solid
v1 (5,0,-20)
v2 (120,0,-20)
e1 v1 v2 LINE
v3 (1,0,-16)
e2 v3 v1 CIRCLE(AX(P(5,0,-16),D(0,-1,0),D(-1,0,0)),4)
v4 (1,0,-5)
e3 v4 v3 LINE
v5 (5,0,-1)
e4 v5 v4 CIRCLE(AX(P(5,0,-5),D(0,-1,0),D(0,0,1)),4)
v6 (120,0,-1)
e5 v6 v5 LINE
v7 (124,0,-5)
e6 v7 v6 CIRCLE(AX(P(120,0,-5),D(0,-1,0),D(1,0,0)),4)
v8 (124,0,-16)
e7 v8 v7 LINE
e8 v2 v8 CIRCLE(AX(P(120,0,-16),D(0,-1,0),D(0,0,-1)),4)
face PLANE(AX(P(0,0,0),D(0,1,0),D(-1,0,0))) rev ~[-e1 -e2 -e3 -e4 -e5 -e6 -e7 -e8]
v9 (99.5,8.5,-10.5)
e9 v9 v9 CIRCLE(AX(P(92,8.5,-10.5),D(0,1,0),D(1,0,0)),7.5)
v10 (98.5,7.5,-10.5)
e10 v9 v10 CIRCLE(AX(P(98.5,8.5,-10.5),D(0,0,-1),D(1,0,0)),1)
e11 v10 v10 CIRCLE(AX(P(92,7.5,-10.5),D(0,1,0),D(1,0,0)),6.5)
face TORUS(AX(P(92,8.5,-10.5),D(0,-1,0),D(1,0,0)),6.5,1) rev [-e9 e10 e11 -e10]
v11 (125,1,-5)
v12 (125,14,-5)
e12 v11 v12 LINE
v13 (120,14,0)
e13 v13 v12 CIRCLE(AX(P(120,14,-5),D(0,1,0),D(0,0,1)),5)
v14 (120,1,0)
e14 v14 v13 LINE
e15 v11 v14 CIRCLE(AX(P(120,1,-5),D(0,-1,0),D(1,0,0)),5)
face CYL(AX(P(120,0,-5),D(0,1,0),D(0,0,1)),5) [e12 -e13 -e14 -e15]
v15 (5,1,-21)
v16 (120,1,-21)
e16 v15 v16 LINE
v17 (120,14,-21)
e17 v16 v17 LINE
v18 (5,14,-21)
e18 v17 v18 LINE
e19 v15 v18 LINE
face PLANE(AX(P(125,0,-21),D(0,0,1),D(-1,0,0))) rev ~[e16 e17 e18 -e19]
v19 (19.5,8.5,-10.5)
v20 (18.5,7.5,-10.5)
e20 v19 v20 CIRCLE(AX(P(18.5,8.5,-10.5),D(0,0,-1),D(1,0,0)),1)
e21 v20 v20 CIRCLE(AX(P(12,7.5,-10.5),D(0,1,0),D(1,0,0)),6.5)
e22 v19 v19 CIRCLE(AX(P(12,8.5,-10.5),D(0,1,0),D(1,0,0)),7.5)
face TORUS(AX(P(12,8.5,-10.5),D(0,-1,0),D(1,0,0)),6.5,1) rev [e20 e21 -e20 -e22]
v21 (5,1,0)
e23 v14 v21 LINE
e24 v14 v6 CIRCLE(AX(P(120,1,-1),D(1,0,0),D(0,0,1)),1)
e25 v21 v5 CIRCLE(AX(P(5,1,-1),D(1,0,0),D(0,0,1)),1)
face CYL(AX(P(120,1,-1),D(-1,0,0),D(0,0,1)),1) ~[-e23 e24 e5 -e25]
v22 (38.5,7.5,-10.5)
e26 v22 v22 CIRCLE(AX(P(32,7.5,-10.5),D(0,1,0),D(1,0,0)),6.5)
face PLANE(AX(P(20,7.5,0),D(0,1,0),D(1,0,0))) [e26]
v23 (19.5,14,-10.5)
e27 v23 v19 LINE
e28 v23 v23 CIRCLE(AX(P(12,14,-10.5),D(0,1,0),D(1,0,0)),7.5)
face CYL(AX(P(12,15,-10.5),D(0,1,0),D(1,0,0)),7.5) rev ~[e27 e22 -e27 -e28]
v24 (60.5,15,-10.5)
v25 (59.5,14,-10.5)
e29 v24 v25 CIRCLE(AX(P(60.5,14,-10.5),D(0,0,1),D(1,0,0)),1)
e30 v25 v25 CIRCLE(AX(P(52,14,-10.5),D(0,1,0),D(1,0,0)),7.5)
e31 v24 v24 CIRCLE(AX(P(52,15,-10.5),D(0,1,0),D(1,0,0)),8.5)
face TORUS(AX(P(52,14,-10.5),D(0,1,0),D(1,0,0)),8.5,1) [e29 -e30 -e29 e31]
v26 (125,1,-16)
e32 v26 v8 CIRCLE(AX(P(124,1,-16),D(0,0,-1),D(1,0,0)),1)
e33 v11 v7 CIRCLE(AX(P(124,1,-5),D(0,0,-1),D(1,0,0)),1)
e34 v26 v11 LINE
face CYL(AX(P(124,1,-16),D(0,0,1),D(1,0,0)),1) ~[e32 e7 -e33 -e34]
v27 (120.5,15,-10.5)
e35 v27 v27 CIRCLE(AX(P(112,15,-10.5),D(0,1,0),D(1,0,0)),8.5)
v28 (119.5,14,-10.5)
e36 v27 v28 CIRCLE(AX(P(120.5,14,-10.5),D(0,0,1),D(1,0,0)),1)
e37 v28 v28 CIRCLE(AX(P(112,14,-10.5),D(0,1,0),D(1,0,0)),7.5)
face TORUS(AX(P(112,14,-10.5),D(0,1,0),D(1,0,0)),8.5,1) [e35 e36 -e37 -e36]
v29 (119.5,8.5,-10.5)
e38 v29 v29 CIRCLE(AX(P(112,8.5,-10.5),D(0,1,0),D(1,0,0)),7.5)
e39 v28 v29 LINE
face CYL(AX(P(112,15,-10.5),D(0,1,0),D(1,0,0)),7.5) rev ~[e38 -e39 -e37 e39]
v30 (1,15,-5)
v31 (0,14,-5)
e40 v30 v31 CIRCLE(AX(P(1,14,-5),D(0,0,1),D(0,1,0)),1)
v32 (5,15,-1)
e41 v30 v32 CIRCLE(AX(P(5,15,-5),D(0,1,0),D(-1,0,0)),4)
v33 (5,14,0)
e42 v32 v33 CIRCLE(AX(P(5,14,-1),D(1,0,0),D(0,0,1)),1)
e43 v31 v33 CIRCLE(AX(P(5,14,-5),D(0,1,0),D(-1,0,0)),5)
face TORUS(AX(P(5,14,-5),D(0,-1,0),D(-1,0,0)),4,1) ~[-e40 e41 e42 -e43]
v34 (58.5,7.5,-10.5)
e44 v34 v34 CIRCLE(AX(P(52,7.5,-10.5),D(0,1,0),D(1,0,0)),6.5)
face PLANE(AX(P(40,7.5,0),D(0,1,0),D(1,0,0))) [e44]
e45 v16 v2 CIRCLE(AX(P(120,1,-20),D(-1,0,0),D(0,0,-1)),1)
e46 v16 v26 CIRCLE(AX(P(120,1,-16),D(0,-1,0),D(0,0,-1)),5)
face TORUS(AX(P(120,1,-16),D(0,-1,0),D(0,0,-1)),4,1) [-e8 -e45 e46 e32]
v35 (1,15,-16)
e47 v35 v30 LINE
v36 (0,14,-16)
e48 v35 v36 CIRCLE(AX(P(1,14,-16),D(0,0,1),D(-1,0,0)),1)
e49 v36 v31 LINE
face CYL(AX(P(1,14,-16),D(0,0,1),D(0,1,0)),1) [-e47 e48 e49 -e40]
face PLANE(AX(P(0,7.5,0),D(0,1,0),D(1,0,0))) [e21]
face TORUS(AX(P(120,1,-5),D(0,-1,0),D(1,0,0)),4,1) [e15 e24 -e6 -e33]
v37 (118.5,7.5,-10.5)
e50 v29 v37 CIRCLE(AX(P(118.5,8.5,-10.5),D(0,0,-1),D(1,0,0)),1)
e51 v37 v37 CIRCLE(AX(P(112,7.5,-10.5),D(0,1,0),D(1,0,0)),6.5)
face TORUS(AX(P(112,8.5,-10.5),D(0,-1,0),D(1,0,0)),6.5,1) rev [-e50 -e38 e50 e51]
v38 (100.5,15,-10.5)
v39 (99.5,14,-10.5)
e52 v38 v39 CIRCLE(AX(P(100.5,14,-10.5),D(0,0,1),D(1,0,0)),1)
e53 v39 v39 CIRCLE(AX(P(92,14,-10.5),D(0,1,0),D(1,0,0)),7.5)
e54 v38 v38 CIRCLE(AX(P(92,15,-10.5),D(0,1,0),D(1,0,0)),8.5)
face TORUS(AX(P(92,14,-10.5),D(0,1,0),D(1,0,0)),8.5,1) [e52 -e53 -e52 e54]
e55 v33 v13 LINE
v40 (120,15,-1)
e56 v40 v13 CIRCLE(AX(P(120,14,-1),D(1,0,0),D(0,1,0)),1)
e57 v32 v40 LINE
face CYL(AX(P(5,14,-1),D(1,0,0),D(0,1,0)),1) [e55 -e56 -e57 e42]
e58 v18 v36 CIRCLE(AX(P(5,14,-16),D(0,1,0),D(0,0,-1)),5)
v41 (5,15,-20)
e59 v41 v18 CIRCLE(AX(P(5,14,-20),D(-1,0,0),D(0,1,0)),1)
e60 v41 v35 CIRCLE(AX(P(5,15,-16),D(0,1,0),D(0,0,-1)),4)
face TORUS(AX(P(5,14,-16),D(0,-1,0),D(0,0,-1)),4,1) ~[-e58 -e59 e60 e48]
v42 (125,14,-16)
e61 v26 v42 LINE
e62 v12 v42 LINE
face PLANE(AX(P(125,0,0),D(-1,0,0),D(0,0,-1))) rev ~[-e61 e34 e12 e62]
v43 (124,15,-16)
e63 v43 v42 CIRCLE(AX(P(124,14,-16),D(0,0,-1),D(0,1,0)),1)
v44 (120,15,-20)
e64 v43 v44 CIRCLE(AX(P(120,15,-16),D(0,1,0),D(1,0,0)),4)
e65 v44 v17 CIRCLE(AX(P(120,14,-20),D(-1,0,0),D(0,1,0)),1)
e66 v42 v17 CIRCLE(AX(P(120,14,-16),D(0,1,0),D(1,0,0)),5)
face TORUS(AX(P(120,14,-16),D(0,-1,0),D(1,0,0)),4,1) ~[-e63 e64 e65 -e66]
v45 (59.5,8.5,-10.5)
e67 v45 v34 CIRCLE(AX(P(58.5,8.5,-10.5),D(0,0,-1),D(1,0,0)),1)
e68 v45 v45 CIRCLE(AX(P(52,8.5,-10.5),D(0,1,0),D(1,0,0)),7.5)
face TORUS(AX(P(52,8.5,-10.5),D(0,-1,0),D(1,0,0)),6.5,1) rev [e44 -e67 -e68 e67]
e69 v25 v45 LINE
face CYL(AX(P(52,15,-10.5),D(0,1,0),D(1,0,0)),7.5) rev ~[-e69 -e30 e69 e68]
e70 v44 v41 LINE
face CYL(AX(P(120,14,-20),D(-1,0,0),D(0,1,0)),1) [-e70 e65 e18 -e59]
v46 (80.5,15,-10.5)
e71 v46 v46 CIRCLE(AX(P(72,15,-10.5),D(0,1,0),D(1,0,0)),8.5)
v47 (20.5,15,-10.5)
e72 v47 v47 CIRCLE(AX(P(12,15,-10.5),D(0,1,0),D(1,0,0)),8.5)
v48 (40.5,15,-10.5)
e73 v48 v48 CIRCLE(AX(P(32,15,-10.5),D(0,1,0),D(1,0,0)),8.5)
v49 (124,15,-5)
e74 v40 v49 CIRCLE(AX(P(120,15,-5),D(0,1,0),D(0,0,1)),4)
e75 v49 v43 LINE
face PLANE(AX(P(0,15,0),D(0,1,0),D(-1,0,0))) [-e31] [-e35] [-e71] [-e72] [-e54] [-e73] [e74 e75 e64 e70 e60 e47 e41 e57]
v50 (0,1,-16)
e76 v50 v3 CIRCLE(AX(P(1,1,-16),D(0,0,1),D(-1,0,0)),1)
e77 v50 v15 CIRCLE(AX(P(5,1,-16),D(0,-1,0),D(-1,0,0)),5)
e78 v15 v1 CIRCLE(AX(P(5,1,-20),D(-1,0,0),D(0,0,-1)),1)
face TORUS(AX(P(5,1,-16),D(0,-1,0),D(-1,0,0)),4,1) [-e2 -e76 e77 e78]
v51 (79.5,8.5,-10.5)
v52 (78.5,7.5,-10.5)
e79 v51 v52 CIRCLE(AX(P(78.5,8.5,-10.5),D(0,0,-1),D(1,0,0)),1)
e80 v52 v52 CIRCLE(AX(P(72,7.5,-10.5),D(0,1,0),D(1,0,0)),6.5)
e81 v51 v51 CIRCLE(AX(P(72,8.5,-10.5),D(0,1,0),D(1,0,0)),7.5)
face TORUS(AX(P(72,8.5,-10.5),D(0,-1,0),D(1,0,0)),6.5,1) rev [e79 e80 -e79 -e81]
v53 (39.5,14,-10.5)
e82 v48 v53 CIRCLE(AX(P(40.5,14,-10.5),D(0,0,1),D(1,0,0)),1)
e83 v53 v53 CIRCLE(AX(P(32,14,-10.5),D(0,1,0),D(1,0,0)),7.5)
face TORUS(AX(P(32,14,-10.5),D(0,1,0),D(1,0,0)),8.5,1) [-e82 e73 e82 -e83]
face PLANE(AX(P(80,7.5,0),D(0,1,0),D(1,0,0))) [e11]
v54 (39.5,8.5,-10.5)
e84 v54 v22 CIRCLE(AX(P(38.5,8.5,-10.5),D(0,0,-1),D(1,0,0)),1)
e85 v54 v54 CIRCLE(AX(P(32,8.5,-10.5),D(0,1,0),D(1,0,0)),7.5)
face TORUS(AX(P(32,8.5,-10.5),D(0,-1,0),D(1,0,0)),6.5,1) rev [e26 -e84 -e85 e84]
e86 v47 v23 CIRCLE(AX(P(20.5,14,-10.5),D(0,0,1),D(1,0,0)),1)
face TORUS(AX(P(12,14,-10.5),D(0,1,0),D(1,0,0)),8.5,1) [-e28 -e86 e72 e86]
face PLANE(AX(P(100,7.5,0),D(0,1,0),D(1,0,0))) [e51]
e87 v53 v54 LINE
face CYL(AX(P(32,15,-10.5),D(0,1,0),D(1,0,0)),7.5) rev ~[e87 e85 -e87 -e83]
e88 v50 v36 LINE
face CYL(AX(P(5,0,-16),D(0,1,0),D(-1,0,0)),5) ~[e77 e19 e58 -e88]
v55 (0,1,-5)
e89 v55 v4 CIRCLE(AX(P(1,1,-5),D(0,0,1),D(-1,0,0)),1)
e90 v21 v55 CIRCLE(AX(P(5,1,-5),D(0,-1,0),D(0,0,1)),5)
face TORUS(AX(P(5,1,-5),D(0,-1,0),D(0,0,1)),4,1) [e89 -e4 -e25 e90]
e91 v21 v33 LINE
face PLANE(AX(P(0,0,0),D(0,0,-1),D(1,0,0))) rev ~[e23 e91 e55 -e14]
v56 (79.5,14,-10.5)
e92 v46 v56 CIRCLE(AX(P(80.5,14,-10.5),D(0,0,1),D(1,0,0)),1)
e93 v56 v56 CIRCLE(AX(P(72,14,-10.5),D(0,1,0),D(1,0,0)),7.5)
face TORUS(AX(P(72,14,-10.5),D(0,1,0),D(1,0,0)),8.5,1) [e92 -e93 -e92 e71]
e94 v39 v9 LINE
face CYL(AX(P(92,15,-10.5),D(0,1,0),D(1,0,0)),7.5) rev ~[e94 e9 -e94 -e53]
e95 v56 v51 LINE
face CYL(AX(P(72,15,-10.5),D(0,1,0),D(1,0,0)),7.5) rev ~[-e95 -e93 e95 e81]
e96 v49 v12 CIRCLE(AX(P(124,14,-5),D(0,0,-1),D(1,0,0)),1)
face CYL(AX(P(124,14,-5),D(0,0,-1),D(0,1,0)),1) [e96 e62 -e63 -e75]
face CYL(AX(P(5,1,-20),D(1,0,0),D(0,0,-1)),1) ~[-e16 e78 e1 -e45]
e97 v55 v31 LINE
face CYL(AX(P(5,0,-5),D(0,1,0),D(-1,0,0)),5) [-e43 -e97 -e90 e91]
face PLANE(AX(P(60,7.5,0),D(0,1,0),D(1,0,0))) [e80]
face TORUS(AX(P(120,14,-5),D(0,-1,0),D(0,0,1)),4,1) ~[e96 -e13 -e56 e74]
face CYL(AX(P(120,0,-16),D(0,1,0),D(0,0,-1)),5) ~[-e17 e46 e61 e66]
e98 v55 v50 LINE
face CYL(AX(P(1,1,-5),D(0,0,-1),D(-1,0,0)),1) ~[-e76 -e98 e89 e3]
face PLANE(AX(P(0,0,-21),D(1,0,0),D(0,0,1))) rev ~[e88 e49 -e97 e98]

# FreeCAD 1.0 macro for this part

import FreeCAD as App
import Part
import Sketcher
from FreeCAD import Vector


def edges_at(feature, points):
    """Names of the edges that pass closest to the given points."""
    edges = feature.Shape.Edges
    near = lambda p: min(range(len(edges)), key=lambda i: edges[i].distToShape(Part.Vertex(*p))[0])
    return sorted({f"Edge{near(p) + 1}" for p in points})


def add_polygon(sketch, points):
    """Adds a closed chain of lines whose ends are joined by coincident constraints."""
    first, n = sketch.GeometryCount, len(points)
    for a, b in zip(points, points[1:] + points[:1]):
        sketch.addGeometry(Part.LineSegment(App.Vector(*a, 0), App.Vector(*b, 0)), False)
    for i in range(n):
        sketch.addConstraint(Sketcher.Constraint("Coincident", first + i, 2, first + (i + 1) % n, 1))

doc = App.newDocument("Part")
body = doc.addObject("PartDesign::Body", "Body")

# Sketch on XZ plane
sketch1 = doc.addObject("Sketcher::SketchObject", "Sketch")
body.addObject(sketch1)
sketch1.AttachmentSupport = (doc.XZ_Plane, [""])
sketch1.MapMode = "FlatFace"
add_polygon(sketch1, [(0, -21), (0, 0), (125, 0), (125, -21)])  # lines 0-3
sketch1.addConstraint([
    Sketcher.Constraint("Vertical", 0),
    Sketcher.Constraint("Horizontal", 1),
    Sketcher.Constraint("Vertical", 2),
    Sketcher.Constraint("Horizontal", 3),
    Sketcher.Constraint("Coincident", 0, 2, -1, 1),
    Sketcher.Constraint("DistanceX", 1, 1, 1, 2, 125.0),
    Sketcher.Constraint("DistanceY", 0, 1, 0, 2, 21.0),
])
pad1 = doc.addObject("PartDesign::Pad", "Pad")
body.addObject(pad1)
pad1.Profile = sketch1
pad1.Length = 15
pad1.Reversed = True

# Sketch on XZ plane
sketch2 = doc.addObject("Sketcher::SketchObject", "Sketch001")
body.addObject(sketch2)
sketch2.AttachmentSupport = (doc.XZ_Plane, [""])
sketch2.MapMode = "FlatFace"
sketch2.AttachmentOffset = App.Placement(Vector(0, 0, -15), App.Rotation())
sketch2.addGeometry(Part.Circle(Vector(12, -10.5, 0), Vector(0, 0, 1), 7.5), False)
sketch2.addConstraint([
    Sketcher.Constraint("Diameter", 0, 15.0),
    Sketcher.Constraint("DistanceX", -1, 1, 0, 3, 12.0),
    Sketcher.Constraint("DistanceY", 0, 3, -1, 1, 10.5),
])
pocket1 = doc.addObject("PartDesign::Pocket", "Pocket")
body.addObject(pocket1)
pocket1.Profile = sketch2
pocket1.Length = 7.5
pocket1.Reversed = True
doc.recompute()

fillet = doc.addObject("PartDesign::Fillet", "Fillet")
body.addObject(fillet)
fillet.Base = (pocket1, edges_at(pocket1, [(4.5, 7.5, -10.5), (4.5, 15, -10.5)]))
fillet.Radius = 1
doc.recompute()

linearpattern = doc.addObject("PartDesign::LinearPattern", "LinearPattern")
body.addObject(linearpattern)
linearpattern.Originals = [pocket1, fillet]
linearpattern.Direction = (doc.X_Axis, [""])
linearpattern.Mode = "offset"
linearpattern.Offset = 20
linearpattern.Occurrences = 6
body.Tip = linearpattern
doc.recompute()

fillet2 = doc.addObject("PartDesign::Fillet", "Fillet001")
body.addObject(fillet2)
fillet2.Base = (linearpattern, edges_at(linearpattern, [
    (0, 7.5, 0),
    (125, 7.5, 0),
    (0, 7.5, -21),
    (125, 7.5, -21),
]))
fillet2.Radius = 5
doc.recompute()

fillet3 = doc.addObject("PartDesign::Fillet", "Fillet002")
body.addObject(fillet3)
fillet3.Base = (fillet2, edges_at(fillet2, [
    (62.5, 15, -21),
    (1.464, 15, -19.535),
    (0, 15, -10.5),
    (1.464, 15, -1.464),
    (62.5, 15, 0),
    (123.535, 15, -1.464),
    (125, 15, -10.5),
    (123.535, 15, -19.535),
    (1.464, 0, -19.535),
    (0, 0, -10.5),
    (1.464, 0, -1.464),
    (62.5, 0, 0),
    (123.535, 0, -1.464),
    (125, 0, -10.5),
    (123.535, 0, -19.535),
    (62.5, 0, -21),
]))
fillet3.Radius = 1

doc.recompute()
